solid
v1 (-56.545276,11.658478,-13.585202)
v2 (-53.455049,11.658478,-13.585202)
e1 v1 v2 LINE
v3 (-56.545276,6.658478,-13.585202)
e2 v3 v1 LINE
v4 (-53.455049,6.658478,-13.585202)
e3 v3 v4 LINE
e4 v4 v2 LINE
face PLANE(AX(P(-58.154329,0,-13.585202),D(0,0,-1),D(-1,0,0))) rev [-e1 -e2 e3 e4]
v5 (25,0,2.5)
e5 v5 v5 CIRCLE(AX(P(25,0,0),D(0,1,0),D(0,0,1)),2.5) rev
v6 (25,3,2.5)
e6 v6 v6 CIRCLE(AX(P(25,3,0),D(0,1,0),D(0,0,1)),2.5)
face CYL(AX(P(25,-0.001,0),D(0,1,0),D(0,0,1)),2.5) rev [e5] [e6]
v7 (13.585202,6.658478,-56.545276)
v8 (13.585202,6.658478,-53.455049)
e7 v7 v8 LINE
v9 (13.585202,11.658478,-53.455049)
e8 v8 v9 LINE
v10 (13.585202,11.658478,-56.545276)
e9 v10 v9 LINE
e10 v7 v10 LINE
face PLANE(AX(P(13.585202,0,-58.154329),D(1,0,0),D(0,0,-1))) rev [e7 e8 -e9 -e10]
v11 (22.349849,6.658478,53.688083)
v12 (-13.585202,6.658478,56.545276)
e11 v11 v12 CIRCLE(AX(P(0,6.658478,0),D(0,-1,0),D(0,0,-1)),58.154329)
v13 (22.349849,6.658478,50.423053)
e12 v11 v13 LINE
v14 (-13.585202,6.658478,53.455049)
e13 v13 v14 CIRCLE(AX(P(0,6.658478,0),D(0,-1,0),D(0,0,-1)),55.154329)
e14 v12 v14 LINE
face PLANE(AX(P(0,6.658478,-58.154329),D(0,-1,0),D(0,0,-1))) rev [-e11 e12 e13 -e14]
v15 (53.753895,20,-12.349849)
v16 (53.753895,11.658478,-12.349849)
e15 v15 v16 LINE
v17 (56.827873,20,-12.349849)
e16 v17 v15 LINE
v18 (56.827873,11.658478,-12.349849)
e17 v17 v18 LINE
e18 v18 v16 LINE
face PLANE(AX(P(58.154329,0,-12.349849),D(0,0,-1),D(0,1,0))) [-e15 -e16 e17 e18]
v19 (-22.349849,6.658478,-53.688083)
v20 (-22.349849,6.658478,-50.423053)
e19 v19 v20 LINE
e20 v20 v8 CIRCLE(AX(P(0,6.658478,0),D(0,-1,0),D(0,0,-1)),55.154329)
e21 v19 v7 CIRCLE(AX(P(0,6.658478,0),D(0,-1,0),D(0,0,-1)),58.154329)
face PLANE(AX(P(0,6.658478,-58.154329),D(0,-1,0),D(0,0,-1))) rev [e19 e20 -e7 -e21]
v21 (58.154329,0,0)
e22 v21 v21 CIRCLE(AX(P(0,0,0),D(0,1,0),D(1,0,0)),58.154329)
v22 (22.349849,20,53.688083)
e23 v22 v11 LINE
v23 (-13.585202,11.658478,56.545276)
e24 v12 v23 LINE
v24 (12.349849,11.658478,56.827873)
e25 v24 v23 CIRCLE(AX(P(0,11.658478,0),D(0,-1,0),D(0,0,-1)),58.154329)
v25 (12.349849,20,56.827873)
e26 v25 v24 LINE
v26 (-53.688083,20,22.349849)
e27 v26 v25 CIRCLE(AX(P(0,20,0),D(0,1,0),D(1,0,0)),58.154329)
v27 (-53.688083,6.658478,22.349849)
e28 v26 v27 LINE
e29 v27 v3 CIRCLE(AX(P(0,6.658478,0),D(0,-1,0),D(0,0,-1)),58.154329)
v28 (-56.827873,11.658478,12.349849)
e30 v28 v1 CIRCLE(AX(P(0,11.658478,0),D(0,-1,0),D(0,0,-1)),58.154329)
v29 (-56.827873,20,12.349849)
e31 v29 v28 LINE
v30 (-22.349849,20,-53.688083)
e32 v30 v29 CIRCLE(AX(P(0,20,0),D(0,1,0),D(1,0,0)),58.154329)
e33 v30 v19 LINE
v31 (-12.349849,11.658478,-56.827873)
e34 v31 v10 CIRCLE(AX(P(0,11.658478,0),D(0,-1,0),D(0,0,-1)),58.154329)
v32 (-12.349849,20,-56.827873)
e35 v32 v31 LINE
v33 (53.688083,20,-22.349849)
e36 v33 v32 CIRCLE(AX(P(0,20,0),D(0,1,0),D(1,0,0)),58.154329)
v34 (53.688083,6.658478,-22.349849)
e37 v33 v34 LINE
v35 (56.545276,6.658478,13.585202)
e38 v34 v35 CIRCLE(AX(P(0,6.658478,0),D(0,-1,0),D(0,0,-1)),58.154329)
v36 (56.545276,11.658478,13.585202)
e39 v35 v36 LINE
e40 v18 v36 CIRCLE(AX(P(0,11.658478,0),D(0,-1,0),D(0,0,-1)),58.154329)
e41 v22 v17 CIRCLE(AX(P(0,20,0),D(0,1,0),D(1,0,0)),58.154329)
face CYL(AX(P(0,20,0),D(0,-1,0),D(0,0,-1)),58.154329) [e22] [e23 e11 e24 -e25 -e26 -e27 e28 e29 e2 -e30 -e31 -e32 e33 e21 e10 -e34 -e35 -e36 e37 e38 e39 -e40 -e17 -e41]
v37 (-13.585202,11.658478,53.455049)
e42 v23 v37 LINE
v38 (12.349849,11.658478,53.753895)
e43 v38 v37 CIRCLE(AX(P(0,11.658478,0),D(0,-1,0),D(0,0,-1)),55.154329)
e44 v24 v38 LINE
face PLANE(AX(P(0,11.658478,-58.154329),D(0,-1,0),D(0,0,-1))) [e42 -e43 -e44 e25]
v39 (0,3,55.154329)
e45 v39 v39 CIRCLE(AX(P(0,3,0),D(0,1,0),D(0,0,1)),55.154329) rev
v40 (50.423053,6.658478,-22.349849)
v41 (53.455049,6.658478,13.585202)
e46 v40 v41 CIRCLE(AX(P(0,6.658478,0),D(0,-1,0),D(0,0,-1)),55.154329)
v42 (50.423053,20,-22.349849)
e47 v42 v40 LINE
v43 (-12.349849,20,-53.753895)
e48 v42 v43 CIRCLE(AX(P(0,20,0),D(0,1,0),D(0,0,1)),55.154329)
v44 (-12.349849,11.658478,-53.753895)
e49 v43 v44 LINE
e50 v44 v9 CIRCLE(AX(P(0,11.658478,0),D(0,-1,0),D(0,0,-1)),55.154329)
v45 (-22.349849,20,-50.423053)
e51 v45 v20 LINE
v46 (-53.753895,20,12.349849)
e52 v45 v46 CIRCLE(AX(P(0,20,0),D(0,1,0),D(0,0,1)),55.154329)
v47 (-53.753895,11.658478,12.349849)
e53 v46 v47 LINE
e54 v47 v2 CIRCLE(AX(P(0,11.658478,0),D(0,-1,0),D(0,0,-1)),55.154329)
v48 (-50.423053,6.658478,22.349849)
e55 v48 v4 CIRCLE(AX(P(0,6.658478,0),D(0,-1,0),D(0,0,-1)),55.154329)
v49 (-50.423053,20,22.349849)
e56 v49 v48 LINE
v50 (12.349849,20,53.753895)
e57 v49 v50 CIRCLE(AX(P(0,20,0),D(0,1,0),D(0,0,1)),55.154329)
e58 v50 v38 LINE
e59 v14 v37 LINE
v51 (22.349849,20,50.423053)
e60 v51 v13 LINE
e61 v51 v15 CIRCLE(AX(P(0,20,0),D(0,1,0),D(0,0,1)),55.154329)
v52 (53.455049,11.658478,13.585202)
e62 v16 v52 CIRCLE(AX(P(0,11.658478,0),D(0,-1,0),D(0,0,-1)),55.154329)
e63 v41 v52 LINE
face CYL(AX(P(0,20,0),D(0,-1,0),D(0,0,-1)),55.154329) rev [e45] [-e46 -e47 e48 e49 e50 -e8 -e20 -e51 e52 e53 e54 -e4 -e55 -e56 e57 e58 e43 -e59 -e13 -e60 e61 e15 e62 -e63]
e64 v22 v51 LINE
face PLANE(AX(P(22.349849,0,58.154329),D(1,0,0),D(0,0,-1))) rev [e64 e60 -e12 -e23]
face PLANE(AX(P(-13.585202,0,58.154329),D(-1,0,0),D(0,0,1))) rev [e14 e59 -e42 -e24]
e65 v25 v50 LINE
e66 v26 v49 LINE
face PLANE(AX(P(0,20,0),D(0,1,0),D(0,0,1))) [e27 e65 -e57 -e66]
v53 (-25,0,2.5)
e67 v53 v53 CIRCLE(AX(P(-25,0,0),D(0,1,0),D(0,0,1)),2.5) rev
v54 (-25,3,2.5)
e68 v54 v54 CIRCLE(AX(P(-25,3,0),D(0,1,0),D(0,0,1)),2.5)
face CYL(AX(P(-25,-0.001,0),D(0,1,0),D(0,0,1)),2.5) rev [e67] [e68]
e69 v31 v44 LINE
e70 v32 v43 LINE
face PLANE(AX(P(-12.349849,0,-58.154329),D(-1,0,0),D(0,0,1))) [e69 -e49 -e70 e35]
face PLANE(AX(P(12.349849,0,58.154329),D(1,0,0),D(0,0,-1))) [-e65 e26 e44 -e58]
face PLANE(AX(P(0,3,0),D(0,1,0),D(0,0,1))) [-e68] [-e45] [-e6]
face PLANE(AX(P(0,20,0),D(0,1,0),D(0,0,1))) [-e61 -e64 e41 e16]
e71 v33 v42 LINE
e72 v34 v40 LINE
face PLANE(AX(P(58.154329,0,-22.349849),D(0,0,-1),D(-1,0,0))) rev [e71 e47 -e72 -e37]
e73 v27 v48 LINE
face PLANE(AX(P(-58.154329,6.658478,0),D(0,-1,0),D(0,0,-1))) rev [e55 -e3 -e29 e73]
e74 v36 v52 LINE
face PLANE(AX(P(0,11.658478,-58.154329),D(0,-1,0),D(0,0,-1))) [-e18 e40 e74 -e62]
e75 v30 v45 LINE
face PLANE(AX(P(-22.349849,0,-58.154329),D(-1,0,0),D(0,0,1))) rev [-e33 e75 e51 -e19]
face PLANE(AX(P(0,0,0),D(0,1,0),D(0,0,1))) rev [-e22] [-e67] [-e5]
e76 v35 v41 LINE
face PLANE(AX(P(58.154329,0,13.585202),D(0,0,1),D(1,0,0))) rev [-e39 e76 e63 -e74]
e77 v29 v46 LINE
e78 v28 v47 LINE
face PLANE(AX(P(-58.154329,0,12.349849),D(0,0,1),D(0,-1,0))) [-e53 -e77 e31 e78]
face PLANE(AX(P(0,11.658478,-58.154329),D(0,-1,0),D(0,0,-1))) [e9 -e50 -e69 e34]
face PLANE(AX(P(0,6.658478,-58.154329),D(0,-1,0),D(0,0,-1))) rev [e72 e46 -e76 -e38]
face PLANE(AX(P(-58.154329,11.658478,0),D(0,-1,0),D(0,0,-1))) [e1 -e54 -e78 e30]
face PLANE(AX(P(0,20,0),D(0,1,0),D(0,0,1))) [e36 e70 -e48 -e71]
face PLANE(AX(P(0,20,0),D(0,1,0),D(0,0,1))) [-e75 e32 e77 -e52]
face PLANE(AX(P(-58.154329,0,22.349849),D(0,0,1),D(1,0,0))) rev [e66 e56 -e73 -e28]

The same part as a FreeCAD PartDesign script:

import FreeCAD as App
import Part
import Sketcher
Q = App.Units.Quantity


def add_polygon(sketch, points):
    """Adds a closed chain of lines whose ends are joined by coincident constraints."""
    first, n = sketch.GeometryCount, len(points)
    for a, b in zip(points, points[1:] + points[:1]):
        sketch.addGeometry(Part.LineSegment(App.Vector(*a, 0), App.Vector(*b, 0)), False)
    for i in range(n):
        sketch.addConstraint(Sketcher.Constraint("Coincident", first + i, 2, first + (i + 1) % n, 1))

doc = App.newDocument("Part")
body = doc.addObject("PartDesign::Body", "Body")

# Sketch on XZ plane
sketch1 = body.newObject("Sketcher::SketchObject", "Sketch")
sketch1.AttachmentSupport = (doc.getObject("XZ_Plane"), [""])
sketch1.MapMode = "FlatFace"
sketch1.addGeometry(Part.Circle(App.Vector(0, 0, 0), App.Vector(0, 0, 1), 55), False)
sketch1.addConstraint(Sketcher.Constraint("Coincident", 0, 3, -1, 1))
sketch1.addConstraint(Sketcher.Constraint("Diameter", 0, Q("110.308658 mm")))
pad1 = body.newObject("PartDesign::Pad", "Pad")
pad1.Profile = sketch1
pad1.Length = 3
pad1.Reversed = True

# Sketch on XZ plane
sketch2 = body.newObject("Sketcher::SketchObject", "Sketch001")
sketch2.AttachmentSupport = (doc.getObject("XZ_Plane"), [""])
sketch2.MapMode = "FlatFace"
sketch2.addGeometry(Part.Circle(App.Vector(0, 0, 0), App.Vector(0, 0, 1), 58), False)
sketch2.addGeometry(Part.Circle(App.Vector(0, 0, 0), App.Vector(0, 0, 1), 55), False)
sketch2.addConstraint(Sketcher.Constraint("Coincident", 0, 3, -1, 1))
sketch2.addConstraint(Sketcher.Constraint("Coincident", 1, 3, -1, 1))
sketch2.addConstraint(Sketcher.Constraint("Diameter", 0, Q("116.308658 mm")))
sketch2.addConstraint(Sketcher.Constraint("Diameter", 1, Q("110.308658 mm")))
pad2 = body.newObject("PartDesign::Pad", "Pad001")
pad2.Profile = sketch2
pad2.Length = 20
pad2.Reversed = True

# Sketch on YZ plane
sketch3 = body.newObject("Sketcher::SketchObject", "Sketch002")
sketch3.AttachmentSupport = (doc.getObject("YZ_Plane"), [""])
sketch3.MapMode = "FlatFace"
add_polygon(sketch3, [(20, 22.3), (6.7, 22.3), (6.7, 12.3), (6.7, -13.6), (11.7, -13.6), (11.7, 12.3), (20, 12.3)])  # lines 0-6
sketch3.addConstraint(Sketcher.Constraint("Horizontal", 0))
sketch3.addConstraint(Sketcher.Constraint("Vertical", 1))
sketch3.addConstraint(Sketcher.Constraint("Vertical", 2))
sketch3.addConstraint(Sketcher.Constraint("Horizontal", 3))
sketch3.addConstraint(Sketcher.Constraint("Vertical", 4))
sketch3.addConstraint(Sketcher.Constraint("Horizontal", 5))
sketch3.addConstraint(Sketcher.Constraint("Vertical", 6))
sketch3.addConstraint(Sketcher.Constraint("Horizontal", 1, 2, 4, 2))
sketch3.addConstraint(Sketcher.Constraint("DistanceX", 3, 1, 3, 2, Q("5 mm")))
sketch3.addConstraint(Sketcher.Constraint("DistanceY", 1, 2, 1, 1, Q("10 mm")))
sketch3.addConstraint(Sketcher.Constraint("DistanceX", -1, 1, 5, 2, Q("20 mm")))
sketch3.addConstraint(Sketcher.Constraint("DistanceX", 0, 2, 0, 1, Q("13.341522 mm")))
sketch3.addConstraint(Sketcher.Constraint("DistanceY", 2, 2, 2, 1, Q("25.935051 mm")))
sketch3.addConstraint(Sketcher.Constraint("DistanceY", -1, 1, 0, 2, Q("22.349849 mm")))
pocket1 = body.newObject("PartDesign::Pocket", "Pocket")
pocket1.Profile = sketch3
pocket1.Type = "ThroughAll"
doc.recompute()

polarpattern = body.newObject("PartDesign::PolarPattern", "PolarPattern")
polarpattern.Originals = [pocket1]
polarpattern.Axis = (doc.getObject("Y_Axis"), [""])
polarpattern.Angle = 360
polarpattern.Occurrences = 4
body.Tip = polarpattern

# Sketch on XZ plane
sketch4 = body.newObject("Sketcher::SketchObject", "Sketch003")
sketch4.AttachmentSupport = (doc.getObject("XZ_Plane"), [""])
sketch4.MapMode = "FlatFace"
sketch4.AttachmentOffset = App.Placement(App.Vector(0, 0, -3), App.Rotation())
sketch4.addGeometry(Part.Circle(App.Vector(-25, 0, 0), App.Vector(0, 0, 1), 2.5), False)
sketch4.addConstraint(Sketcher.Constraint("PointOnObject", 0, 3, -1))
sketch4.addConstraint(Sketcher.Constraint("Diameter", 0, Q("5 mm")))
sketch4.addConstraint(Sketcher.Constraint("DistanceX", 0, 3, -1, 1, Q("25 mm")))
pocket2 = body.newObject("PartDesign::Pocket", "Pocket001")
pocket2.Profile = sketch4
pocket2.Type = "UpToFirst"
pocket2.Reversed = True

# Sketch on XZ plane
sketch5 = body.newObject("Sketcher::SketchObject", "Sketch004")
sketch5.AttachmentSupport = (doc.getObject("XZ_Plane"), [""])
sketch5.MapMode = "FlatFace"
sketch5.AttachmentOffset = App.Placement(App.Vector(0, 0, -3), App.Rotation())
sketch5.addGeometry(Part.Circle(App.Vector(25, 0, 0), App.Vector(0, 0, 1), 2.5), False)
sketch5.addConstraint(Sketcher.Constraint("PointOnObject", 0, 3, -1))
sketch5.addConstraint(Sketcher.Constraint("Diameter", 0, Q("5 mm")))
sketch5.addConstraint(Sketcher.Constraint("DistanceX", -1, 1, 0, 3, Q("25 mm")))
pocket3 = body.newObject("PartDesign::Pocket", "Pocket002")
pocket3.Profile = sketch5
pocket3.Type = "UpToFirst"
pocket3.Reversed = True

doc.recompute()
